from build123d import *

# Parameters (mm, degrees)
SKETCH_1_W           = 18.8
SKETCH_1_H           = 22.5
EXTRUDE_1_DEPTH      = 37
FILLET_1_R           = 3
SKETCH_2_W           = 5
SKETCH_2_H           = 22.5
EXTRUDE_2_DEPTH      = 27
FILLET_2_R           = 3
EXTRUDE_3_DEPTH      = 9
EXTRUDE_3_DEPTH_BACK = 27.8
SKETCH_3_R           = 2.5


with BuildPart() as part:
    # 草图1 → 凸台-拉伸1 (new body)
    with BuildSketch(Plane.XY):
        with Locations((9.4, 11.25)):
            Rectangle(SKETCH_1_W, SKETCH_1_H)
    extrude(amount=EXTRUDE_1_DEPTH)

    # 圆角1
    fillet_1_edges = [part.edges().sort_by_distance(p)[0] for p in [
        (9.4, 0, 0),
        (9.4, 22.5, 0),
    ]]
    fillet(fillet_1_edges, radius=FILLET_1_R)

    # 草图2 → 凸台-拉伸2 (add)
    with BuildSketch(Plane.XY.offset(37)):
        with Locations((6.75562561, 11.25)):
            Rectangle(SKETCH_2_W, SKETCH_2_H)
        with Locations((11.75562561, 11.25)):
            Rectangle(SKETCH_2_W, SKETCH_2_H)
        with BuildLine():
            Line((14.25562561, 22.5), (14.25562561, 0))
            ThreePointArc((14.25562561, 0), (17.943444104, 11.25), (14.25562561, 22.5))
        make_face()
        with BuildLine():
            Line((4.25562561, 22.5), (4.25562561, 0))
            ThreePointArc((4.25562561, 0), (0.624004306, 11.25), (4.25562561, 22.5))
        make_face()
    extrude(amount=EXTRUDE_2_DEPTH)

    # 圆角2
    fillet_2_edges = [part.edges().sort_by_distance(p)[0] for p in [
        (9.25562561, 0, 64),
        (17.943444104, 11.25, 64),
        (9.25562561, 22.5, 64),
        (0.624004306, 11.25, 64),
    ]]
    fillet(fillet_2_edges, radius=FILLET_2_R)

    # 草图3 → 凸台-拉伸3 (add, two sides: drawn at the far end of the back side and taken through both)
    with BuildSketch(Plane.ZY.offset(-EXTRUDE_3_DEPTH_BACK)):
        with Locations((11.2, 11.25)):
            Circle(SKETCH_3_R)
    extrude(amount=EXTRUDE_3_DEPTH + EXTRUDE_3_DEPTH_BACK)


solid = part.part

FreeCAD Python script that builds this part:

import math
import FreeCAD as App
import Part
import Sketcher
from FreeCAD import Vector
Q = App.Units.Quantity


def edges_at(feature, points):
    """Names of the edges that pass closest to the given points."""
    edges = feature.Shape.Edges
    near = lambda p: min(range(len(edges)), key=lambda i: edges[i].distToShape(Part.Vertex(*p))[0])
    return sorted({f"Edge{near(p) + 1}" for p in points})


def add_polygon(sketch, points):
    """Adds a closed chain of lines whose ends are joined by coincident constraints."""
    first, n = sketch.GeometryCount, len(points)
    for a, b in zip(points, points[1:] + points[:1]):
        sketch.addGeometry(Part.LineSegment(App.Vector(*a, 0), App.Vector(*b, 0)), False)
    for i in range(n):
        sketch.addConstraint(Sketcher.Constraint("Coincident", first + i, 2, first + (i + 1) % n, 1))

doc = App.newDocument("Part")
body = doc.addObject("PartDesign::Body", "Body")

# Sketch on XY plane
sketch1 = body.newObject("Sketcher::SketchObject", "Sketch")
sketch1.AttachmentSupport = (doc.getObject("XY_Plane"), [""])
sketch1.MapMode = "FlatFace"
add_polygon(sketch1, [(0, 22), (0, 0), (19, 0), (19, 22)])  # lines 0-3
sketch1.addConstraint([
    Sketcher.Constraint("Vertical", 0),
    Sketcher.Constraint("Horizontal", 1),
    Sketcher.Constraint("Vertical", 2),
    Sketcher.Constraint("Horizontal", 3),
    Sketcher.Constraint("Coincident", 0, 2, -1, 1),
    Sketcher.Constraint("DistanceX", 1, 1, 1, 2, Q("18.8 mm")),
    Sketcher.Constraint("DistanceY", 0, 2, 0, 1, Q("22.5 mm")),
])
pad1 = body.newObject("PartDesign::Pad", "Pad")
pad1.Profile = sketch1
pad1.Length = 37
doc.recompute()

fillet = body.newObject("PartDesign::Fillet", "Fillet")
fillet.Base = (pad1, edges_at(pad1, [(9.4, 0, 0), (9.4, 22.5, 0)]))
fillet.Radius = 3

# Sketch on XY plane
sketch2 = body.newObject("Sketcher::SketchObject", "Sketch001")
sketch2.AttachmentSupport = (doc.getObject("XY_Plane"), [""])
sketch2.MapMode = "FlatFace"
sketch2.AttachmentOffset = App.Placement(Vector(0, 0, 37), App.Rotation())
sketch2.addGeometry([
    Part.LineSegment(Vector(4, 0, 0), Vector(14, 0, 0)),
    Part.ArcOfCircle(Part.Circle(Vector(-1, 11, 0), Vector(0, 0, 1), 19), math.radians(-36), math.radians(36)),
    Part.LineSegment(Vector(14, 22, 0), Vector(4, 22, 0)),
    Part.ArcOfCircle(Part.Circle(Vector(20, 11, 0), Vector(0, 0, 1), 19), math.radians(144), math.radians(216)),
], False)
sketch2.addConstraint([
    Sketcher.Constraint("Coincident", 0, 2, 1, 1),
    Sketcher.Constraint("Coincident", 1, 2, 2, 1),
    Sketcher.Constraint("Coincident", 2, 2, 3, 1),
    Sketcher.Constraint("Coincident", 3, 2, 0, 1),
    Sketcher.Constraint("Horizontal", 0),
    Sketcher.Constraint("Horizontal", 2),
    Sketcher.Constraint("PointOnObject", 0, 2, -1),
    Sketcher.Constraint("Horizontal", 1, 3, 3, 3),
    Sketcher.Constraint("Vertical", 0, 2, 1, 2),
    Sketcher.Constraint("DistanceX", 0, 1, 0, 2, Q("10 mm")),
    Sketcher.Constraint("DistanceY", -1, 1, 1, 2, Q("22.5 mm")),
    Sketcher.Constraint("DistanceX", 1, 3, -1, 1, Q("1.06 mm")),
    Sketcher.Constraint("Radius", 3, Q("19.240879 mm")),
    Sketcher.Constraint("Radius", 1, Q("19.003444 mm")),
])
pad2 = body.newObject("PartDesign::Pad", "Pad001")
pad2.Profile = sketch2
pad2.Length = 27
doc.recompute()

fillet2 = body.newObject("PartDesign::Fillet", "Fillet001")
fillet2.Base = (pad2, edges_at(pad2, [
    (9.256, 0, 64),
    (17.943, 11.25, 64),
    (9.256, 22.5, 64),
    (0.624, 11.25, 64),
]))
fillet2.Radius = 3

# Sketch on YZ plane
sketch3 = body.newObject("Sketcher::SketchObject", "Sketch002")
sketch3.AttachmentSupport = (doc.getObject("YZ_Plane"), [""])
sketch3.MapMode = "FlatFace"
sketch3.addGeometry(Part.Circle(Vector(11.2, 11.2, 0), Vector(0, 0, 1), 2.5), False)
sketch3.addConstraint([
    Sketcher.Constraint("Diameter", 0, Q("5 mm")),
    Sketcher.Constraint("DistanceY", -1, 1, 0, 3, Q("11.2 mm")),
    Sketcher.Constraint("DistanceX", -1, 1, 0, 3, Q("11.25 mm")),
])
pad3 = body.newObject("PartDesign::Pad", "Pad002")
pad3.Profile = sketch3
pad3.Type = "TwoLengths"
pad3.Length = 9
pad3.Length2 = 27.8
pad3.Reversed = True

doc.recompute()
